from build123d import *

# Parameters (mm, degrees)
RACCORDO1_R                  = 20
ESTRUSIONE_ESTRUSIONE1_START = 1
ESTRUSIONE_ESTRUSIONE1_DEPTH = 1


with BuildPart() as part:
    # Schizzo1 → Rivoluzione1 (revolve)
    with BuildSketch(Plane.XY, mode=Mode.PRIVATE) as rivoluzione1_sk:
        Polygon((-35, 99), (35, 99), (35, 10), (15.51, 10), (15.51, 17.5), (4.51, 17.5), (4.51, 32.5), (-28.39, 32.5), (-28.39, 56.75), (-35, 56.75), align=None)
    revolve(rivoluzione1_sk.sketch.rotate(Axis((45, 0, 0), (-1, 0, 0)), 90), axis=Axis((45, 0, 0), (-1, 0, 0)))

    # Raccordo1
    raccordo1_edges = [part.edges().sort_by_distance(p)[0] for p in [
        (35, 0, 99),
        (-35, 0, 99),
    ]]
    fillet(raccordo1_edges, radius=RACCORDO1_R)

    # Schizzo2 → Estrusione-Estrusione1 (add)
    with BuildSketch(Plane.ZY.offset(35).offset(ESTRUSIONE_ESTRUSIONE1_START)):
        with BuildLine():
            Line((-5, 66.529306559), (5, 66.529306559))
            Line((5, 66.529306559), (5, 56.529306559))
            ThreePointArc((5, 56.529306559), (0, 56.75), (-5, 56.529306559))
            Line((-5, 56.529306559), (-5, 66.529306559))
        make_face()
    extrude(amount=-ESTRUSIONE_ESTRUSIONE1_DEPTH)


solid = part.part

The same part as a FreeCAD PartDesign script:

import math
import FreeCAD as App
import Part
import Sketcher
Q = App.Units.Quantity


def edges_at(feature, points):
    """Names of the edges that pass closest to the given points."""
    edges = feature.Shape.Edges
    near = lambda p: min(range(len(edges)), key=lambda i: edges[i].distToShape(Part.Vertex(*p))[0])
    return sorted({f"Edge{near(p) + 1}" for p in points})

doc = App.newDocument("Part")
body = doc.addObject("PartDesign::Body", "Body")

# Sketch on XY plane
sketch1 = body.newObject("Sketcher::SketchObject", "Sketch")
sketch1.AttachmentSupport = (doc.getObject("XY_Plane"), [""])
sketch1.MapMode = "FlatFace"
sketch1.addGeometry(Part.LineSegment(App.Vector(35, 99, 0), App.Vector(-35, 99, 0)), False)
sketch1.addGeometry(Part.LineSegment(App.Vector(-35, 99, 0), App.Vector(-35, 57, 0)), False)
sketch1.addGeometry(Part.LineSegment(App.Vector(-35, 57, 0), App.Vector(-28, 57, 0)), False)
sketch1.addGeometry(Part.LineSegment(App.Vector(-28, 57, 0), App.Vector(-28, 32, 0)), False)
sketch1.addGeometry(Part.LineSegment(App.Vector(-28, 32, 0), App.Vector(5, 32, 0)), False)
sketch1.addGeometry(Part.LineSegment(App.Vector(5, 32, 0), App.Vector(5, 18, 0)), False)
sketch1.addGeometry(Part.LineSegment(App.Vector(5, 18, 0), App.Vector(16, 18, 0)), False)
sketch1.addGeometry(Part.LineSegment(App.Vector(16, 18, 0), App.Vector(16, 10, 0)), False)
sketch1.addGeometry(Part.LineSegment(App.Vector(16, 10, 0), App.Vector(35, 10, 0)), False)
sketch1.addGeometry(Part.LineSegment(App.Vector(35, 10, 0), App.Vector(35, 99, 0)), False)
sketch1.addConstraint(Sketcher.Constraint("Coincident", 0, 2, 1, 1))
sketch1.addConstraint(Sketcher.Constraint("Coincident", 1, 2, 2, 1))
sketch1.addConstraint(Sketcher.Constraint("Coincident", 2, 2, 3, 1))
sketch1.addConstraint(Sketcher.Constraint("Coincident", 3, 2, 4, 1))
sketch1.addConstraint(Sketcher.Constraint("Coincident", 4, 2, 5, 1))
sketch1.addConstraint(Sketcher.Constraint("Coincident", 5, 2, 6, 1))
sketch1.addConstraint(Sketcher.Constraint("Coincident", 6, 2, 7, 1))
sketch1.addConstraint(Sketcher.Constraint("Coincident", 7, 2, 8, 1))
sketch1.addConstraint(Sketcher.Constraint("Coincident", 8, 2, 9, 1))
sketch1.addConstraint(Sketcher.Constraint("Coincident", 9, 2, 0, 1))
sketch1.addConstraint(Sketcher.Constraint("Horizontal", 0))
sketch1.addConstraint(Sketcher.Constraint("Vertical", 1))
sketch1.addConstraint(Sketcher.Constraint("Horizontal", 2))
sketch1.addConstraint(Sketcher.Constraint("Vertical", 3))
sketch1.addConstraint(Sketcher.Constraint("Horizontal", 4))
sketch1.addConstraint(Sketcher.Constraint("Vertical", 5))
sketch1.addConstraint(Sketcher.Constraint("Horizontal", 6))
sketch1.addConstraint(Sketcher.Constraint("Vertical", 7))
sketch1.addConstraint(Sketcher.Constraint("Horizontal", 8))
sketch1.addConstraint(Sketcher.Constraint("Vertical", 9))
sketch1.addConstraint(Sketcher.Constraint("DistanceX", 0, 2, 0, 1, Q("70 mm")))
sketch1.addConstraint(Sketcher.Constraint("DistanceX", 6, 1, 6, 2, Q("11 mm")))
sketch1.addConstraint(Sketcher.Constraint("DistanceY", 5, 2, 5, 1, Q("15 mm")))
sketch1.addConstraint(Sketcher.Constraint("DistanceY", 9, 1, 9, 2, Q("89 mm")))
sketch1.addConstraint(Sketcher.Constraint("DistanceX", 4, 1, 4, 2, Q("32.9 mm")))
sketch1.addConstraint(Sketcher.Constraint("DistanceY", 7, 2, 7, 1, Q("7.5 mm")))
sketch1.addConstraint(Sketcher.Constraint("DistanceX", 0, 2, -1, 1, Q("35 mm")))
sketch1.addConstraint(Sketcher.Constraint("DistanceY", -1, 1, 0, 2, Q("99 mm")))
sketch1.addConstraint(Sketcher.Constraint("DistanceX", 2, 1, 2, 2, Q("6.61 mm")))
sketch1.addConstraint(Sketcher.Constraint("DistanceY", 1, 2, 1, 1, Q("42.25 mm")))
revolution = body.newObject("PartDesign::Revolution", "Revolution")
revolution.Profile = sketch1
revolution.ReferenceAxis = (sketch1, ["H_Axis"])
revolution.Angle = 360
doc.recompute()

fillet = body.newObject("PartDesign::Fillet", "Fillet")
fillet.Base = (revolution, edges_at(revolution, [(35, 0, 99), (-35, 0, 99)]))
fillet.Radius = 20

# Sketch on YZ plane
sketch2 = body.newObject("Sketcher::SketchObject", "Sketch001")
sketch2.AttachmentSupport = (doc.getObject("YZ_Plane"), [""])
sketch2.MapMode = "FlatFace"
sketch2.AttachmentOffset = App.Placement(App.Vector(0, 0, -36), App.Rotation())
sketch2.addGeometry(Part.LineSegment(App.Vector(67, 5, 0), App.Vector(67, -5, 0)), False)
sketch2.addGeometry(Part.LineSegment(App.Vector(67, -5, 0), App.Vector(57, -5, 0)), False)
sketch2.addGeometry(Part.ArcOfCircle(Part.Circle(App.Vector(0, 0, 0), App.Vector(0, 0, 1), 57), math.radians(-5.05), math.radians(5.05)), False)
sketch2.addGeometry(Part.LineSegment(App.Vector(57, 5, 0), App.Vector(67, 5, 0)), False)
sketch2.addConstraint(Sketcher.Constraint("Coincident", 0, 2, 1, 1))
sketch2.addConstraint(Sketcher.Constraint("Coincident", 1, 2, 2, 1))
sketch2.addConstraint(Sketcher.Constraint("Coincident", 2, 2, 3, 1))
sketch2.addConstraint(Sketcher.Constraint("Coincident", 3, 2, 0, 1))
sketch2.addConstraint(Sketcher.Constraint("Vertical", 0))
sketch2.addConstraint(Sketcher.Constraint("Horizontal", 1))
sketch2.addConstraint(Sketcher.Constraint("Horizontal", 3))
sketch2.addConstraint(Sketcher.Constraint("Coincident", 2, 3, -1, 1))
sketch2.addConstraint(Sketcher.Constraint("Vertical", 1, 2, 2, 2))
sketch2.addConstraint(Sketcher.Constraint("Equal", 3, 0))
sketch2.addConstraint(Sketcher.Constraint("DistanceX", 1, 2, 1, 1, Q("10 mm")))
sketch2.addConstraint(Sketcher.Constraint("Radius", 2, Q("56.75 mm")))
pad1 = body.newObject("PartDesign::Pad", "Pad")
pad1.Profile = sketch2
pad1.Length = 1

doc.recompute()
